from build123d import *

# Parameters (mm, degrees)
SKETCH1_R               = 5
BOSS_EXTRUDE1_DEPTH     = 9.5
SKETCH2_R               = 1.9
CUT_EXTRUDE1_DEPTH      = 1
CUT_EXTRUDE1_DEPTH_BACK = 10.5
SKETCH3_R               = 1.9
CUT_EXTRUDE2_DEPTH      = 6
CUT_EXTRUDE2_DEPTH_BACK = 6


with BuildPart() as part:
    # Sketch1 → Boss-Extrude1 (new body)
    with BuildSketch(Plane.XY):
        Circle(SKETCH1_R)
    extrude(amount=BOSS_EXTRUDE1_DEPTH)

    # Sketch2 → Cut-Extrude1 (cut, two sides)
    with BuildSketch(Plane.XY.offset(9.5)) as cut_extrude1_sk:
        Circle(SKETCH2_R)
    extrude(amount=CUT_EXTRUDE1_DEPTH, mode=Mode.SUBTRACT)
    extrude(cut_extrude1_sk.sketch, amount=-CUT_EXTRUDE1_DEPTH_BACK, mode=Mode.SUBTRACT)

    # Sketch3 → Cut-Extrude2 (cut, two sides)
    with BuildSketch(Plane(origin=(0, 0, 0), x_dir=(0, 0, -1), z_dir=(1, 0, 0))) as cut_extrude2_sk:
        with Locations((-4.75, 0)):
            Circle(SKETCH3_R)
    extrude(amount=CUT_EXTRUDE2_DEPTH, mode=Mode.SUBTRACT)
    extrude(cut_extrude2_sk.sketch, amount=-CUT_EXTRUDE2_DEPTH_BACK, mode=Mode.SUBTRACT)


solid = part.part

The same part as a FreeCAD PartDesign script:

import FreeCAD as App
import Part
import Sketcher

V = App.Vector
Q = App.Units.Quantity

doc = App.newDocument("Part")
params = doc.addObject("Spreadsheet::Sheet", "Params")
for row, (alias, value) in enumerate([
    ("sketch1_diameter", "10 mm"),
    ("pad1_length", "9.5 mm"),
    ("sketch2_diameter", "3.8 mm"),
    ("sketch3_diameter", "3.8 mm"),
], start=1):
    params.set(f"A{row}", alias)
    params.set(f"B{row}", "=" + value)
    params.setAlias(f"B{row}", alias)

body = doc.addObject("PartDesign::Body", "Body")

# Sketch on XY plane
sketch1 = body.newObject("Sketcher::SketchObject", "Sketch")
sketch1.AttachmentSupport = (doc.getObject("XY_Plane"), [""])
sketch1.MapMode = "FlatFace"
sketch1.addGeometry(Part.Circle(V(0, 0, 0), V(0, 0, 1), 5), False)
sketch1.addConstraint(Sketcher.Constraint("Coincident", 0, 3, -1, 1))
sketch1.addConstraint(Sketcher.Constraint("Diameter", 0, Q("10 mm")))
sketch1.setExpression("Constraints[1]", "Params.sketch1_diameter")
pad1 = body.newObject("PartDesign::Pad", "Pad")
pad1.Profile = sketch1
pad1.setExpression("Length", "Params.pad1_length")

# Sketch on XY plane
sketch2 = body.newObject("Sketcher::SketchObject", "Sketch001")
sketch2.AttachmentSupport = (doc.getObject("XY_Plane"), [""])
sketch2.MapMode = "FlatFace"
sketch2.AttachmentOffset = App.Placement(V(0, 0, 9.5), App.Rotation())
sketch2.addGeometry(Part.Circle(V(0, 0, 0), V(0, 0, 1), 1.9), False)
sketch2.addConstraint(Sketcher.Constraint("Coincident", 0, 3, -1, 1))
sketch2.addConstraint(Sketcher.Constraint("Diameter", 0, Q("3.8 mm")))
sketch2.setExpression("Constraints[1]", "Params.sketch2_diameter")
pocket1 = body.newObject("PartDesign::Pocket", "Pocket")
pocket1.Profile = sketch2
pocket1.Type = "ThroughAll"
pocket1.Midplane = True

# Sketch on YZ plane
sketch3 = body.newObject("Sketcher::SketchObject", "Sketch002")
sketch3.AttachmentSupport = (doc.getObject("YZ_Plane"), [""])
sketch3.MapMode = "FlatFace"
sketch3.addGeometry(Part.Circle(V(0, 4.8, 0), V(0, 0, 1), 1.9), False)
sketch3.addConstraint(Sketcher.Constraint("PointOnObject", 0, 3, -2))
sketch3.addConstraint(Sketcher.Constraint("Diameter", 0, Q("3.8 mm")))
sketch3.addConstraint(Sketcher.Constraint("DistanceY", -1, 1, 0, 3, Q("4.75 mm")))
sketch3.setExpression("Constraints[1]", "Params.sketch3_diameter")
pocket2 = body.newObject("PartDesign::Pocket", "Pocket001")
pocket2.Profile = sketch3
pocket2.Type = "ThroughAll"
pocket2.Midplane = True

doc.recompute()
